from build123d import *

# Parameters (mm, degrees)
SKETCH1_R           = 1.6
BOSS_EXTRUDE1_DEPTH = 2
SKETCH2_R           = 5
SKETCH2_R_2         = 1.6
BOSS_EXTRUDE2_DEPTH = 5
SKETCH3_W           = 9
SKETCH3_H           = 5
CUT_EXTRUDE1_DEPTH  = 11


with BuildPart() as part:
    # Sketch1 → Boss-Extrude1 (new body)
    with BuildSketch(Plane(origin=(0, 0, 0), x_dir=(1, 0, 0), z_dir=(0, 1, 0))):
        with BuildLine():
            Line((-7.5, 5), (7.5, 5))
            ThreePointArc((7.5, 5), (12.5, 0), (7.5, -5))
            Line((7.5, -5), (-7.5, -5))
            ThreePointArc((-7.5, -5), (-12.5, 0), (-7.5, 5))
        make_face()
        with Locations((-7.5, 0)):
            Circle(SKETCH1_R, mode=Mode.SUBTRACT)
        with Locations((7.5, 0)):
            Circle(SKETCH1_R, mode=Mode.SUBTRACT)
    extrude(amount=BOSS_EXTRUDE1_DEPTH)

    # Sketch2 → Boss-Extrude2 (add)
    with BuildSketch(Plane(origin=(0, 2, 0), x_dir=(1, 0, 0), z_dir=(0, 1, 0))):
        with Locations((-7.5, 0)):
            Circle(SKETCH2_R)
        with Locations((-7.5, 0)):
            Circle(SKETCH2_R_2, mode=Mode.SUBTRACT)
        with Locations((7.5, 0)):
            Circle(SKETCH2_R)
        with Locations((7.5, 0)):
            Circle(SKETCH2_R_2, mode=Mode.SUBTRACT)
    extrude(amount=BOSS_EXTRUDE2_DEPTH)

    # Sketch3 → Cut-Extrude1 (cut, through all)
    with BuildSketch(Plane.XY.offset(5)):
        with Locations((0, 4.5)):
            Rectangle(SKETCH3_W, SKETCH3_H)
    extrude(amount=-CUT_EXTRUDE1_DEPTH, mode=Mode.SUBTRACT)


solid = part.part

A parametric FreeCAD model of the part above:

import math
import FreeCAD as App
import Part
import Sketcher


def add_polygon(sketch, points):
    """Adds a closed chain of lines whose ends are joined by coincident constraints."""
    first, n = sketch.GeometryCount, len(points)
    for a, b in zip(points, points[1:] + points[:1]):
        sketch.addGeometry(Part.LineSegment(App.Vector(*a, 0), App.Vector(*b, 0)), False)
    for i in range(n):
        sketch.addConstraint(Sketcher.Constraint("Coincident", first + i, 2, first + (i + 1) % n, 1))

doc = App.newDocument("Part")
body = doc.addObject("PartDesign::Body", "Body")

# Sketch on XZ plane
sketch1 = body.newObject("Sketcher::SketchObject", "Sketch")
sketch1.AttachmentSupport = (doc.getObject("XZ_Plane"), [""])
sketch1.MapMode = "FlatFace"
sketch1.addGeometry(Part.LineSegment(App.Vector(7.5, -5, 0), App.Vector(-7.5, -5, 0)), False)
sketch1.addGeometry(Part.ArcOfCircle(Part.Circle(App.Vector(-7.5, 0, 0), App.Vector(0, 0, 1), 5), math.radians(90), math.radians(270)), False)
sketch1.addGeometry(Part.LineSegment(App.Vector(-7.5, 5, 0), App.Vector(7.5, 5, 0)), False)
sketch1.addGeometry(Part.ArcOfCircle(Part.Circle(App.Vector(7.5, 0, 0), App.Vector(0, 0, 1), 5), math.radians(-90), math.radians(90)), False)
sketch1.addGeometry(Part.Circle(App.Vector(7.5, 0, 0), App.Vector(0, 0, 1), 1.6), False)
sketch1.addGeometry(Part.Circle(App.Vector(-7.5, 0, 0), App.Vector(0, 0, 1), 1.6), False)
sketch1.addConstraint(Sketcher.Constraint("Tangent", 0, 2, 1, 2))
sketch1.addConstraint(Sketcher.Constraint("Tangent", 1, 1, 2, 1))
sketch1.addConstraint(Sketcher.Constraint("Tangent", 2, 2, 3, 2))
sketch1.addConstraint(Sketcher.Constraint("Tangent", 3, 1, 0, 1))
sketch1.addConstraint(Sketcher.Constraint("Horizontal", 0))
sketch1.addConstraint(Sketcher.Constraint("Horizontal", 2))
sketch1.addConstraint(Sketcher.Constraint("Coincident", 4, 3, 3, 3))
sketch1.addConstraint(Sketcher.Constraint("Coincident", 5, 3, 1, 3))
sketch1.addConstraint(Sketcher.Constraint("Equal", 4, 5))
sketch1.addConstraint(Sketcher.Constraint("Symmetric", 1, 3, 3, 3, -1, 1))
sketch1.addConstraint(Sketcher.Constraint("Radius", 1, 5.0))
sketch1.addConstraint(Sketcher.Constraint("Diameter", 4, 3.2))
sketch1.addConstraint(Sketcher.Constraint("DistanceX", 0, 2, 0, 1, 15.0))
pad1 = body.newObject("PartDesign::Pad", "Pad")
pad1.Profile = sketch1
pad1.Length = 2
pad1.Reversed = True

# Sketch on XZ plane
sketch2 = body.newObject("Sketcher::SketchObject", "Sketch001")
sketch2.AttachmentSupport = (doc.getObject("XZ_Plane"), [""])
sketch2.MapMode = "FlatFace"
sketch2.AttachmentOffset = App.Placement(App.Vector(0, 0, -2), App.Rotation())
sketch2.addGeometry(Part.Circle(App.Vector(-7.5, 0, 0), App.Vector(0, 0, 1), 5), False)
sketch2.addGeometry(Part.Circle(App.Vector(-7.5, 0, 0), App.Vector(0, 0, 1), 1.6), False)
sketch2.addGeometry(Part.Circle(App.Vector(7.5, 0, 0), App.Vector(0, 0, 1), 5), False)
sketch2.addGeometry(Part.Circle(App.Vector(7.5, 0, 0), App.Vector(0, 0, 1), 1.6), False)
sketch2.addConstraint(Sketcher.Constraint("Coincident", 1, 3, 0, 3))
sketch2.addConstraint(Sketcher.Constraint("Coincident", 3, 3, 2, 3))
sketch2.addConstraint(Sketcher.Constraint("Equal", 0, 2))
sketch2.addConstraint(Sketcher.Constraint("Equal", 1, 3))
sketch2.addConstraint(Sketcher.Constraint("Symmetric", 0, 3, 2, 3, -1, 1))
sketch2.addConstraint(Sketcher.Constraint("PointOnObject", 0, 3, -1))
sketch2.addConstraint(Sketcher.Constraint("Diameter", 0, 10.0))
sketch2.addConstraint(Sketcher.Constraint("Diameter", 1, 3.2))
sketch2.addConstraint(Sketcher.Constraint("DistanceX", 0, 3, 2, 3, 15.0))
pad2 = body.newObject("PartDesign::Pad", "Pad001")
pad2.Profile = sketch2
pad2.Length = 5
pad2.Reversed = True

# Sketch on XY plane
sketch3 = body.newObject("Sketcher::SketchObject", "Sketch002")
sketch3.AttachmentSupport = (doc.getObject("XY_Plane"), [""])
sketch3.MapMode = "FlatFace"
sketch3.AttachmentOffset = App.Placement(App.Vector(0, 0, 5), App.Rotation())
add_polygon(sketch3, [(-4, 7), (-4, 2), (4, 2), (4, 7)])  # lines 0-3
sketch3.addConstraint(Sketcher.Constraint("Vertical", 0))
sketch3.addConstraint(Sketcher.Constraint("Horizontal", 1))
sketch3.addConstraint(Sketcher.Constraint("Vertical", 2))
sketch3.addConstraint(Sketcher.Constraint("Horizontal", 3))
sketch3.addConstraint(Sketcher.Constraint("DistanceX", 1, 1, 1, 2, 9.0))
sketch3.addConstraint(Sketcher.Constraint("DistanceY", 0, 2, 0, 1, 5.0))
sketch3.addConstraint(Sketcher.Constraint("DistanceY", -1, 1, 0, 2, 2.0))
sketch3.addConstraint(Sketcher.Constraint("DistanceX", 0, 2, -1, 1, 4.5))
pocket1 = body.newObject("PartDesign::Pocket", "Pocket")
pocket1.Profile = sketch3
pocket1.Type = "ThroughAll"

doc.recompute()
